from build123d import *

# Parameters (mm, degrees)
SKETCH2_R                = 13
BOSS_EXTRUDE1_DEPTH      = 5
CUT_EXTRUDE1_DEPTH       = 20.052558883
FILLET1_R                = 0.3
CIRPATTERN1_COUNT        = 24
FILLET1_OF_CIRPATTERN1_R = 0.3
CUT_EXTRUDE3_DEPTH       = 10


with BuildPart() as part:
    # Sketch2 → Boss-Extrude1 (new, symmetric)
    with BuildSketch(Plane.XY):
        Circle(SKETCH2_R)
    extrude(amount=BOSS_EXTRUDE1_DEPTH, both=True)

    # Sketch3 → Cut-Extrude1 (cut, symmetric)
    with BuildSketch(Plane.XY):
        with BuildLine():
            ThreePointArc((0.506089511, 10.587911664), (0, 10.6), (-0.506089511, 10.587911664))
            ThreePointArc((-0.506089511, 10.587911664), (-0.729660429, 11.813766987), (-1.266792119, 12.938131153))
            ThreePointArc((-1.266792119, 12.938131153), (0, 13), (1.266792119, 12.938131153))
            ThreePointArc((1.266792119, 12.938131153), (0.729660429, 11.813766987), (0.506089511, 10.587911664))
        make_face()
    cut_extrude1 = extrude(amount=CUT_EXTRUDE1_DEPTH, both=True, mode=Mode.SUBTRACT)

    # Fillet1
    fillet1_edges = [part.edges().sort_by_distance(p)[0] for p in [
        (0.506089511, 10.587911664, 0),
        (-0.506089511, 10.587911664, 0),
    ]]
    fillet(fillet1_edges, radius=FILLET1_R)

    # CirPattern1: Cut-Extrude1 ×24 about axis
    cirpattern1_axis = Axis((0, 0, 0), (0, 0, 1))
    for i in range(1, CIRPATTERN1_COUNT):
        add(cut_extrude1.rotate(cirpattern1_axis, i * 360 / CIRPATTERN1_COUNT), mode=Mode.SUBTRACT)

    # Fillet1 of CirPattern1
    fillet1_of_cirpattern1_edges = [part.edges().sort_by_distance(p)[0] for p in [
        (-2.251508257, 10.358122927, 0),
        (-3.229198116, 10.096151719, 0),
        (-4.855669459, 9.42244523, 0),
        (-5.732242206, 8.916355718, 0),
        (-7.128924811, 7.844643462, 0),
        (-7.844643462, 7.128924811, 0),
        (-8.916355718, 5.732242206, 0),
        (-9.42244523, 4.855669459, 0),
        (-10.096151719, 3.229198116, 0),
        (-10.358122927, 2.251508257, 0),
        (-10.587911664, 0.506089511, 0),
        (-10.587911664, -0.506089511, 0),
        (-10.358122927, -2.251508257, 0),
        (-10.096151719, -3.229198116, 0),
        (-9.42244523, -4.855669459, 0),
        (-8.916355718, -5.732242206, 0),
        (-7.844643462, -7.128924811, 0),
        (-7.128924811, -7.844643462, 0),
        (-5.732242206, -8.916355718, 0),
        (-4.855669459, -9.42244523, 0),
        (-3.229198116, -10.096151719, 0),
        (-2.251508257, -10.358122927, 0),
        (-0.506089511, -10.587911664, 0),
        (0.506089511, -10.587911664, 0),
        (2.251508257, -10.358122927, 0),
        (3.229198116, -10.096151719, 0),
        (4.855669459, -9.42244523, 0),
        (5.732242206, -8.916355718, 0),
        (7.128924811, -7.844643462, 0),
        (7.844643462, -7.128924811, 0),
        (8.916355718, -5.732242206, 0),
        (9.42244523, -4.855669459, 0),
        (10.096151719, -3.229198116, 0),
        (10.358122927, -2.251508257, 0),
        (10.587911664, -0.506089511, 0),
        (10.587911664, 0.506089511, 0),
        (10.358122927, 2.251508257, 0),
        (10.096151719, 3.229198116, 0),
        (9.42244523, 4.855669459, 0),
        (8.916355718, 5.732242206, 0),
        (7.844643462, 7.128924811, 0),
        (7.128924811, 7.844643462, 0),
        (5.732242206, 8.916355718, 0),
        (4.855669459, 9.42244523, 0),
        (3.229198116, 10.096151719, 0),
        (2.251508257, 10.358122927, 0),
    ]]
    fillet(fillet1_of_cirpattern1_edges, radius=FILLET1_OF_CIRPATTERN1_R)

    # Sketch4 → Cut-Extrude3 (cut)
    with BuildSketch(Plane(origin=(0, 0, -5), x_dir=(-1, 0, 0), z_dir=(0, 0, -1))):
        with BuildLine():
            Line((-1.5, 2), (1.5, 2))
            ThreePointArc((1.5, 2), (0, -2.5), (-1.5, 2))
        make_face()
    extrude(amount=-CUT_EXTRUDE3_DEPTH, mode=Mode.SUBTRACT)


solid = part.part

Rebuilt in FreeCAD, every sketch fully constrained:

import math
import FreeCAD as App
import Part
import Sketcher

V = App.Vector


def edges_at(feature, points):
    """Names of the edges that pass closest to the given points."""
    edges = feature.Shape.Edges
    near = lambda p: min(range(len(edges)), key=lambda i: edges[i].distToShape(Part.Vertex(*p))[0])
    return sorted({f"Edge{near(p) + 1}" for p in points})

doc = App.newDocument("Part")
body = doc.addObject("PartDesign::Body", "Body")

sketch1 = body.newObject("Sketcher::SketchObject", "Sketch")
sketch1.AttachmentSupport = (doc.getObject("XY_Plane"), [""])
sketch1.MapMode = "FlatFace"
sketch1.addGeometry(Part.Circle(V(0, 0, 0), V(0, 0, 1), 13), False)
sketch1.addConstraint(Sketcher.Constraint("Coincident", 0, 3, -1, 1))
sketch1.addConstraint(Sketcher.Constraint("Diameter", 0, 26.0))
pad1 = body.newObject("PartDesign::Pad", "Pad")
pad1.Profile = sketch1
pad1.Length = 10
pad1.Midplane = True

sketch2 = body.newObject("Sketcher::SketchObject", "Sketch001")
sketch2.AttachmentSupport = (doc.getObject("XY_Plane"), [""])
sketch2.MapMode = "FlatFace"
sketch2.addGeometry(Part.ArcOfCircle(Part.Circle(V(0, 0, 0), V(0, 0, 1), 10.6), math.radians(87.26), math.radians(92.74)), False)
sketch2.addGeometry(Part.ArcOfCircle(Part.Circle(V(5.2, 10.4, 0), V(0, 0, 1), 4.7), math.radians(147), math.radians(177)), False)
sketch2.addGeometry(Part.ArcOfCircle(Part.Circle(V(0, 0, 0), V(0, 0, 1), 13), math.radians(84.41), math.radians(95.59)), False)
sketch2.addGeometry(Part.ArcOfCircle(Part.Circle(V(-5.2, 10.4, 0), V(0, 0, 1), 4.7), math.radians(3), math.radians(33)), False)
sketch2.addConstraint(Sketcher.Constraint("Coincident", 0, 1, 1, 2))
sketch2.addConstraint(Sketcher.Constraint("Coincident", 1, 1, 2, 1))
sketch2.addConstraint(Sketcher.Constraint("Coincident", 2, 2, 3, 2))
sketch2.addConstraint(Sketcher.Constraint("Coincident", 3, 1, 0, 2))
sketch2.addConstraint(Sketcher.Constraint("Coincident", 0, 3, -1, 1))
sketch2.addConstraint(Sketcher.Constraint("Coincident", 2, 3, -1, 1))
sketch2.addConstraint(Sketcher.Constraint("Equal", 1, 3))
sketch2.addConstraint(Sketcher.Constraint("Symmetric", 1, 3, 3, 3, -2))
sketch2.addConstraint(Sketcher.Constraint("Radius", 2, 13.0))
sketch2.addConstraint(Sketcher.Constraint("Radius", 0, 10.6))
sketch2.addConstraint(Sketcher.Constraint("Radius", 1, 4.71121))
sketch2.addConstraint(Sketcher.Constraint("DistanceY", -1, 1, 1, 3, 10.362978))
sketch2.addConstraint(Sketcher.Constraint("DistanceX", -1, 1, 0, 1, 0.50609))
pocket1 = body.newObject("PartDesign::Pocket", "Pocket")
pocket1.Profile = sketch2
pocket1.Length = 40.105118
pocket1.Midplane = True
doc.recompute()

fillet = body.newObject("PartDesign::Fillet", "Fillet")
fillet.Base = (pocket1, edges_at(pocket1, [(0.506, 10.588, 0), (-0.506, 10.588, 0)]))
fillet.Radius = 0.3
doc.recompute()

polarpattern = body.newObject("PartDesign::PolarPattern", "PolarPattern")
polarpattern.Originals = [pocket1]
polarpattern.Axis = (doc.getObject("Z_Axis"), [""])
polarpattern.Angle = 360
polarpattern.Occurrences = 24
body.Tip = polarpattern
doc.recompute()

fillet2 = body.newObject("PartDesign::Fillet", "Fillet001")
fillet2.Base = (polarpattern, edges_at(polarpattern, [
    (-2.252, 10.358, 0),
    (-3.229, 10.096, 0),
    (-4.856, 9.422, 0),
    (-5.732, 8.916, 0),
    (-7.129, 7.845, 0),
    (-7.845, 7.129, 0),
    (-8.916, 5.732, 0),
    (-9.422, 4.856, 0),
    (-10.096, 3.229, 0),
    (-10.358, 2.252, 0),
    (-10.588, 0.506, 0),
    (-10.588, -0.506, 0),
    (-10.358, -2.252, 0),
    (-10.096, -3.229, 0),
    (-9.422, -4.856, 0),
    (-8.916, -5.732, 0),
    (-7.845, -7.129, 0),
    (-7.129, -7.845, 0),
    (-5.732, -8.916, 0),
    (-4.856, -9.422, 0),
    (-3.229, -10.096, 0),
    (-2.252, -10.358, 0),
    (-0.506, -10.588, 0),
    (0.506, -10.588, 0),
    (2.252, -10.358, 0),
    (3.229, -10.096, 0),
    (4.856, -9.422, 0),
    (5.732, -8.916, 0),
    (7.129, -7.845, 0),
    (7.845, -7.129, 0),
    (8.916, -5.732, 0),
    (9.422, -4.856, 0),
    (10.096, -3.229, 0),
    (10.358, -2.252, 0),
    (10.588, -0.506, 0),
    (10.588, 0.506, 0),
    (10.358, 2.252, 0),
    (10.096, 3.229, 0),
    (9.422, 4.856, 0),
    (8.916, 5.732, 0),
    (7.845, 7.129, 0),
    (7.129, 7.845, 0),
    (5.732, 8.916, 0),
    (4.856, 9.422, 0),
    (3.229, 10.096, 0),
    (2.252, 10.358, 0),
]))
fillet2.Radius = 0.3

sketch3 = body.newObject("Sketcher::SketchObject", "Sketch002")
sketch3.AttachmentSupport = (doc.getObject("XY_Plane"), [""])
sketch3.MapMode = "FlatFace"
sketch3.AttachmentOffset = App.Placement(V(0, 0, -5), App.Rotation())
sketch3.addGeometry(Part.LineSegment(V(-1.5, 2, 0), V(1.5, 2, 0)), False)
sketch3.addGeometry(Part.ArcOfCircle(Part.Circle(V(0, 0, 0), V(0, 0, 1), 2.5), math.radians(127), math.radians(413)), False)
sketch3.addConstraint(Sketcher.Constraint("Coincident", 0, 1, 1, 1))
sketch3.addConstraint(Sketcher.Constraint("Coincident", 1, 2, 0, 2))
sketch3.addConstraint(Sketcher.Constraint("Horizontal", 0))
sketch3.addConstraint(Sketcher.Constraint("Coincident", 1, 3, -1, 1))
sketch3.addConstraint(Sketcher.Constraint("Radius", 1, 2.5))
sketch3.addConstraint(Sketcher.Constraint("DistanceX", 0, 1, 0, 2, 3.0))
pocket2 = body.newObject("PartDesign::Pocket", "Pocket001")
pocket2.Profile = sketch3
pocket2.Length = 10
pocket2.Reversed = True

doc.recompute()
